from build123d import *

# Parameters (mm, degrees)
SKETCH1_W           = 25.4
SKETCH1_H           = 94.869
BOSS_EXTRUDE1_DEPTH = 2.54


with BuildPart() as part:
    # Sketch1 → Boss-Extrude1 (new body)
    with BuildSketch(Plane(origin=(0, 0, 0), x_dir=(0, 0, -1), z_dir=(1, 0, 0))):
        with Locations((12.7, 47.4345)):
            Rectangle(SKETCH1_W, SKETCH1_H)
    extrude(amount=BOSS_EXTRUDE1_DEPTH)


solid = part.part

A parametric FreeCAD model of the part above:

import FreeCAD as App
import Part
import Sketcher
from FreeCAD import Vector
Q = App.Units.Quantity

doc = App.newDocument("Part")
body = doc.addObject("PartDesign::Body", "Body")

# Sketch on YZ plane
sketch1 = body.newObject("Sketcher::SketchObject", "Sketch")
sketch1.AttachmentSupport = (doc.getObject("YZ_Plane"), [""])
sketch1.MapMode = "FlatFace"
sketch1.addGeometry([
    Part.LineSegment(Vector(95, 0, 0), Vector(0, 0, 0)),
    Part.LineSegment(Vector(0, 0, 0), Vector(0, -25, 0)),
    Part.LineSegment(Vector(0, -25, 0), Vector(95, -25, 0)),
    Part.LineSegment(Vector(95, -25, 0), Vector(95, 0, 0)),
], False)
sketch1.addConstraint([
    Sketcher.Constraint("Coincident", 0, 2, 1, 1),
    Sketcher.Constraint("Coincident", 1, 2, 2, 1),
    Sketcher.Constraint("Coincident", 2, 2, 3, 1),
    Sketcher.Constraint("Coincident", 3, 2, 0, 1),
    Sketcher.Constraint("Horizontal", 0),
    Sketcher.Constraint("Vertical", 1),
    Sketcher.Constraint("Horizontal", 2),
    Sketcher.Constraint("Vertical", 3),
    Sketcher.Constraint("Coincident", 0, 2, -1, 1),
    Sketcher.Constraint("DistanceY", 1, 2, 1, 1, Q("1 in")),
    Sketcher.Constraint("DistanceX", 0, 2, 0, 1, Q("3.735 in")),
])
pad1 = body.newObject("PartDesign::Pad", "Pad")
pad1.Profile = sketch1
pad1.Length = Q("0.1 in")

doc.recompute()
